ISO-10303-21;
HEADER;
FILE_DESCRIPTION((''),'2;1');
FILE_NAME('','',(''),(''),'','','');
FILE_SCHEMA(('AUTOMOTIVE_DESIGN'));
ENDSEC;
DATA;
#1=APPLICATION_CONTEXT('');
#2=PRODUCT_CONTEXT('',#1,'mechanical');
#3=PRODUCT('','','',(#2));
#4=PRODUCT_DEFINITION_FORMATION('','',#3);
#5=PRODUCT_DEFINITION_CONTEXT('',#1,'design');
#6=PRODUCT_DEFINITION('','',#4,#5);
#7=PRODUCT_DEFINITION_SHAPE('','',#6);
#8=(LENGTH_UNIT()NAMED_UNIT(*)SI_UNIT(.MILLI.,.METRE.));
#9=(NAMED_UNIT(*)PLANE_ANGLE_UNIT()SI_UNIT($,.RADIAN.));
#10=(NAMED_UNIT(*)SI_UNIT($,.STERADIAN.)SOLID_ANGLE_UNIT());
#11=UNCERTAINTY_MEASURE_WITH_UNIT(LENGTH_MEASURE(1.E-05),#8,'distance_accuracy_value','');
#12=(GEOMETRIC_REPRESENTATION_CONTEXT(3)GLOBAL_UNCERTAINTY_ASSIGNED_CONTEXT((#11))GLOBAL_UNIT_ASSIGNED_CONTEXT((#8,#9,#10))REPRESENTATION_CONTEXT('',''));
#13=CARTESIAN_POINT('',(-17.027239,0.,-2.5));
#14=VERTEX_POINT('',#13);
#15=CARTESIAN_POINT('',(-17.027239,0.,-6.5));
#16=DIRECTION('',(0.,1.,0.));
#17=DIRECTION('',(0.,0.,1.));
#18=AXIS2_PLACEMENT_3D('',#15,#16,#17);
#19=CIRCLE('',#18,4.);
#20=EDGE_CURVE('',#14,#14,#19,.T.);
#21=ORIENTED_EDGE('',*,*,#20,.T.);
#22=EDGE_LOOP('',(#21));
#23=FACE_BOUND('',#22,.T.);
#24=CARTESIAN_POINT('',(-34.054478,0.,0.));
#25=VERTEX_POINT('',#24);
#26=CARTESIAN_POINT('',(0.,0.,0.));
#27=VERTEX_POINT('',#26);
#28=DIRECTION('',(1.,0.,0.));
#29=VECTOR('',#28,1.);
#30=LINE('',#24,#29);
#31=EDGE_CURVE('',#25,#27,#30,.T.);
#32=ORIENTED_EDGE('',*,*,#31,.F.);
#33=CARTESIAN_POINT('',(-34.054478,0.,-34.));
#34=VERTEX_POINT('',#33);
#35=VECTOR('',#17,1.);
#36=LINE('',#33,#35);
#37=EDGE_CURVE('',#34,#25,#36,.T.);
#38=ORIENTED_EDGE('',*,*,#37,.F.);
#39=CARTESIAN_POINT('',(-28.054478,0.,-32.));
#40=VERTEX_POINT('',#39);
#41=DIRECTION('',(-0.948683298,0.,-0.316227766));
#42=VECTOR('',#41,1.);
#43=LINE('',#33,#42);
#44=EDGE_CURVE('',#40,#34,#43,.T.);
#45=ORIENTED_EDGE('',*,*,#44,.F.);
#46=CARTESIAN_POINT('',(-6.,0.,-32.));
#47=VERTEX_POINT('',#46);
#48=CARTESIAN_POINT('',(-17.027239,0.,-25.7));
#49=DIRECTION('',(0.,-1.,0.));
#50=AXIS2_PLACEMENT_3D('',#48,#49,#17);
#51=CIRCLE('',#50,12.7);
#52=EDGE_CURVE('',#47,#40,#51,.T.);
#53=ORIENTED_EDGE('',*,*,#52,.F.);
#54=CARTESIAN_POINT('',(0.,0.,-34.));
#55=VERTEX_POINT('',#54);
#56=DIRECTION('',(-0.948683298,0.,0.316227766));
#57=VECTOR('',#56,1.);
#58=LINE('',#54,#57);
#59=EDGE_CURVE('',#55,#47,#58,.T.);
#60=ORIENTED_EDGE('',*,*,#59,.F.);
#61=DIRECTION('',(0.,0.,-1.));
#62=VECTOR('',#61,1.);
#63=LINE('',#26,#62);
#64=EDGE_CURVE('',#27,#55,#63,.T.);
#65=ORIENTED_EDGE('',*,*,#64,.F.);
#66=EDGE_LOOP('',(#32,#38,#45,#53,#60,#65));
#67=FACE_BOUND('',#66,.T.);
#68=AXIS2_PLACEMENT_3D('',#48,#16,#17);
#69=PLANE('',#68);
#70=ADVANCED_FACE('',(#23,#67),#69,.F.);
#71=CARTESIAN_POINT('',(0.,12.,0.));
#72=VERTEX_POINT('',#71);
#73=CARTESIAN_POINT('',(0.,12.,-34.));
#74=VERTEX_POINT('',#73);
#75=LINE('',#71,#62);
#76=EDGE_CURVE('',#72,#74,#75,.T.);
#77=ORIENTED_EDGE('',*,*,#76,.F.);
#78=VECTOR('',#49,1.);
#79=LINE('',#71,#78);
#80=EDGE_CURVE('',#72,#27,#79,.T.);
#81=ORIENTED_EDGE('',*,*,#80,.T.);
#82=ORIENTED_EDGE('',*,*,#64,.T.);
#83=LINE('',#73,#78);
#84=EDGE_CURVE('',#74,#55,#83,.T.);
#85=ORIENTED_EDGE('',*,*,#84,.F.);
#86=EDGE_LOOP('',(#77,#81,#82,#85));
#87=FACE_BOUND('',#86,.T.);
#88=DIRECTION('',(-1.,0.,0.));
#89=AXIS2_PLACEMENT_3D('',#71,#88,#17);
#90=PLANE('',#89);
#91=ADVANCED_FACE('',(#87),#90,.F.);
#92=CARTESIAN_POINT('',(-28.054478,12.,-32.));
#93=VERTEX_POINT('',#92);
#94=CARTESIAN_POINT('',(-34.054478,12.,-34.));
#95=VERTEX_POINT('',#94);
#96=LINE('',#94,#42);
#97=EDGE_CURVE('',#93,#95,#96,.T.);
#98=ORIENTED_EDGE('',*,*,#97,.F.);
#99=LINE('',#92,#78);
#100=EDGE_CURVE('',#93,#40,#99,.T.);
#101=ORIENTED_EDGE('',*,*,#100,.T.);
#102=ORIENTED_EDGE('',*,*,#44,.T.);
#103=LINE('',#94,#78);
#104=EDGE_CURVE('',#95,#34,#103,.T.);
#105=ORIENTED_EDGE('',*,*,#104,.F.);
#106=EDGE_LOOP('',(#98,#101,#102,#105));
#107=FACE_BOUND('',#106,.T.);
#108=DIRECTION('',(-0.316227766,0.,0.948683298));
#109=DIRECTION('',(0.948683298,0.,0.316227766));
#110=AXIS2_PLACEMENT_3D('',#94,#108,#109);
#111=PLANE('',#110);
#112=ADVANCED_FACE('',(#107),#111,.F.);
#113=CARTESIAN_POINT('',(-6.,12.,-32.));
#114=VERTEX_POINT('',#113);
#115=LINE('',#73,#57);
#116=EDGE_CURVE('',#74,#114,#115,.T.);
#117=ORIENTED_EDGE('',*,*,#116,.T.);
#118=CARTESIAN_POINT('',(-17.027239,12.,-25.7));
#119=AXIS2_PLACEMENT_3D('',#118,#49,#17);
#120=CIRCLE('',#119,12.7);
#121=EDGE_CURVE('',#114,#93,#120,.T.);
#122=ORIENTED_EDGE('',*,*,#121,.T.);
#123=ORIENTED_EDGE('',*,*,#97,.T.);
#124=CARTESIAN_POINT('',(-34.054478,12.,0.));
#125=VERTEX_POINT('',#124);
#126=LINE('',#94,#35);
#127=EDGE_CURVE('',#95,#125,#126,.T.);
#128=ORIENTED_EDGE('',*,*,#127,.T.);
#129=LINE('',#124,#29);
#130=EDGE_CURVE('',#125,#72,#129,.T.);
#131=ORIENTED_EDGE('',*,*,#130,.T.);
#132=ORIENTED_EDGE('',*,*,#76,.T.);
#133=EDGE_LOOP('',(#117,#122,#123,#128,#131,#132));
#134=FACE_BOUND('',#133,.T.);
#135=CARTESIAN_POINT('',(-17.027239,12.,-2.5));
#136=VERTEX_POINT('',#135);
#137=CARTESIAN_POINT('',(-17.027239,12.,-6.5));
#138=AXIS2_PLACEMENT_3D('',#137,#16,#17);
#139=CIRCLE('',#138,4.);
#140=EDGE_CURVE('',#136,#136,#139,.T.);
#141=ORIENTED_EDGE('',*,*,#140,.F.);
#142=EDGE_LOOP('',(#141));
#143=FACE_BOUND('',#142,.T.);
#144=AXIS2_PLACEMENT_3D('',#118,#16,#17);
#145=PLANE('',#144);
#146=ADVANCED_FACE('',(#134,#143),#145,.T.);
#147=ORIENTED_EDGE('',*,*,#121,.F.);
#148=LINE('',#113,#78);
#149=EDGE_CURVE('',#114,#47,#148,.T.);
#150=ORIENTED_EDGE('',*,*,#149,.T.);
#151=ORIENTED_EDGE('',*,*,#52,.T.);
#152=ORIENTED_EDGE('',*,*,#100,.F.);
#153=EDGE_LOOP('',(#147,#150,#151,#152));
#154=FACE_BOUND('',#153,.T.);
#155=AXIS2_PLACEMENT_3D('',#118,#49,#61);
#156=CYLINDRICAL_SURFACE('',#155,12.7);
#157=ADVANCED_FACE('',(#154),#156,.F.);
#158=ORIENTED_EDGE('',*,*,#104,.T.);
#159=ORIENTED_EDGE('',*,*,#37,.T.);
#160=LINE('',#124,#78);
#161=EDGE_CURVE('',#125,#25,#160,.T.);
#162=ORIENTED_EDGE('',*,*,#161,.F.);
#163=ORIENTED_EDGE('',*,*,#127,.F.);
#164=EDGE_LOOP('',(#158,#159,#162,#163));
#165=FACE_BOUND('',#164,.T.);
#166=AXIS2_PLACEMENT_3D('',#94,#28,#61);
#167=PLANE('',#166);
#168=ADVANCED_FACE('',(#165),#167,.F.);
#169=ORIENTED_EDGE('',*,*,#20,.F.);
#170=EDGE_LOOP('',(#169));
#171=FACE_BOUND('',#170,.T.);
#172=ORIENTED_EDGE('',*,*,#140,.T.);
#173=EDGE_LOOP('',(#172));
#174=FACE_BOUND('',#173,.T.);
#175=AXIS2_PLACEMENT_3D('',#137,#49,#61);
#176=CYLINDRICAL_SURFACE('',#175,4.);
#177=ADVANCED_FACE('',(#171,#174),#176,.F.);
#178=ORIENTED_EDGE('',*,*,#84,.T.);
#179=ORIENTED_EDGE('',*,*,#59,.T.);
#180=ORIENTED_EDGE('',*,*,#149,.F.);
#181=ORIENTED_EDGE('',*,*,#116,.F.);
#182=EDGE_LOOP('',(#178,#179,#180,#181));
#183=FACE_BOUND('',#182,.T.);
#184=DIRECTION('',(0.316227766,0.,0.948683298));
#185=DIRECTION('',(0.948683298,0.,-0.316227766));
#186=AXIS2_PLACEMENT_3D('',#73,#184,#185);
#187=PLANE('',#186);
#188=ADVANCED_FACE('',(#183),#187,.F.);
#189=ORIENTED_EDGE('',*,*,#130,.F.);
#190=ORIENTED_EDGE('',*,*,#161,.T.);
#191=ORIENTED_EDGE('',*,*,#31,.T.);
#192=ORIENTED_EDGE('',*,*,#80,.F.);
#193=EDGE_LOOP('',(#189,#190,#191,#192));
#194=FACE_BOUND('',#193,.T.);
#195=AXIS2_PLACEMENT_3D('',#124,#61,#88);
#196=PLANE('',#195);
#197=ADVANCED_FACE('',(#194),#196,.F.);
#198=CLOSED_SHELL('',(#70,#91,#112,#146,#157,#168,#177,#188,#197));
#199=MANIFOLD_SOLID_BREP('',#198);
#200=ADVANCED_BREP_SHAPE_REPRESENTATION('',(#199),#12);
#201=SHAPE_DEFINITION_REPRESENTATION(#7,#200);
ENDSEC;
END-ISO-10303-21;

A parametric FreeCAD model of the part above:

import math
import FreeCAD as App
import Part
import Sketcher
Q = App.Units.Quantity

doc = App.newDocument("Part")
body = doc.addObject("PartDesign::Body", "Body")

# Sketch on XZ plane
sketch1 = body.newObject("Sketcher::SketchObject", "Sketch")
sketch1.AttachmentSupport = (doc.getObject("XZ_Plane"), [""])
sketch1.MapMode = "FlatFace"
sketch1.addGeometry(Part.LineSegment(App.Vector(-34.054478, -34, 0), App.Vector(-34.054478, 0, 0)), False)
sketch1.addGeometry(Part.LineSegment(App.Vector(-34.054478, 0, 0), App.Vector(0, 0, 0)), False)
sketch1.addGeometry(Part.LineSegment(App.Vector(0, 0, 0), App.Vector(0, -34, 0)), False)
sketch1.addGeometry(Part.LineSegment(App.Vector(0, -34, 0), App.Vector(-6, -32, 0)), False)
sketch1.addGeometry(Part.ArcOfCircle(Part.Circle(App.Vector(-17.027239, -25.7, 0), App.Vector(0, 0, 1), 12.7), math.radians(-29.73987), math.radians(209.73987)), False)
sketch1.addGeometry(Part.LineSegment(App.Vector(-28.054478, -32, 0), App.Vector(-34.054478, -34, 0)), False)
sketch1.addGeometry(Part.Circle(App.Vector(-17.027239, -6.5, 0), App.Vector(0, 0, 1), 4), False)
sketch1.addConstraint(Sketcher.Constraint("Coincident", 0, 2, 1, 1))
sketch1.addConstraint(Sketcher.Constraint("Coincident", 1, 2, 2, 1))
sketch1.addConstraint(Sketcher.Constraint("Coincident", 2, 2, 3, 1))
sketch1.addConstraint(Sketcher.Constraint("Coincident", 3, 2, 4, 1))
sketch1.addConstraint(Sketcher.Constraint("Coincident", 4, 2, 5, 1))
sketch1.addConstraint(Sketcher.Constraint("Coincident", 5, 2, 0, 1))
sketch1.addConstraint(Sketcher.Constraint("Vertical", 0))
sketch1.addConstraint(Sketcher.Constraint("Horizontal", 1))
sketch1.addConstraint(Sketcher.Constraint("Vertical", 2))
sketch1.addConstraint(Sketcher.Constraint("Coincident", 1, 2, -1, 1))
sketch1.addConstraint(Sketcher.Constraint("Horizontal", 3, 2, 4, 2))
sketch1.addConstraint(Sketcher.Constraint("Horizontal", 2, 2, 5, 2))
sketch1.addConstraint(Sketcher.Constraint("Vertical", 4, 3, 6, 3))
sketch1.addConstraint(Sketcher.Constraint("Equal", 3, 5))
sketch1.addConstraint(Sketcher.Constraint("Diameter", 6, Q("8 mm")))
sketch1.addConstraint(Sketcher.Constraint("Radius", 4, Q("12.7 mm")))
sketch1.addConstraint(Sketcher.Constraint("DistanceY", 0, 1, 0, 2, Q("34 mm")))
sketch1.addConstraint(Sketcher.Constraint("DistanceX", 3, 2, -1, 1, Q("6 mm")))
sketch1.addConstraint(Sketcher.Constraint("DistanceY", 3, 2, -1, 1, Q("32 mm")))
sketch1.addConstraint(Sketcher.Constraint("DistanceY", 4, 3, -1, 1, Q("25.7 mm")))
sketch1.addConstraint(Sketcher.Constraint("DistanceY", 6, 3, -1, 1, Q("6.5 mm")))
pad1 = body.newObject("PartDesign::Pad", "Pad")
pad1.Profile = sketch1
pad1.Length = 12
pad1.Reversed = True

doc.recompute()
